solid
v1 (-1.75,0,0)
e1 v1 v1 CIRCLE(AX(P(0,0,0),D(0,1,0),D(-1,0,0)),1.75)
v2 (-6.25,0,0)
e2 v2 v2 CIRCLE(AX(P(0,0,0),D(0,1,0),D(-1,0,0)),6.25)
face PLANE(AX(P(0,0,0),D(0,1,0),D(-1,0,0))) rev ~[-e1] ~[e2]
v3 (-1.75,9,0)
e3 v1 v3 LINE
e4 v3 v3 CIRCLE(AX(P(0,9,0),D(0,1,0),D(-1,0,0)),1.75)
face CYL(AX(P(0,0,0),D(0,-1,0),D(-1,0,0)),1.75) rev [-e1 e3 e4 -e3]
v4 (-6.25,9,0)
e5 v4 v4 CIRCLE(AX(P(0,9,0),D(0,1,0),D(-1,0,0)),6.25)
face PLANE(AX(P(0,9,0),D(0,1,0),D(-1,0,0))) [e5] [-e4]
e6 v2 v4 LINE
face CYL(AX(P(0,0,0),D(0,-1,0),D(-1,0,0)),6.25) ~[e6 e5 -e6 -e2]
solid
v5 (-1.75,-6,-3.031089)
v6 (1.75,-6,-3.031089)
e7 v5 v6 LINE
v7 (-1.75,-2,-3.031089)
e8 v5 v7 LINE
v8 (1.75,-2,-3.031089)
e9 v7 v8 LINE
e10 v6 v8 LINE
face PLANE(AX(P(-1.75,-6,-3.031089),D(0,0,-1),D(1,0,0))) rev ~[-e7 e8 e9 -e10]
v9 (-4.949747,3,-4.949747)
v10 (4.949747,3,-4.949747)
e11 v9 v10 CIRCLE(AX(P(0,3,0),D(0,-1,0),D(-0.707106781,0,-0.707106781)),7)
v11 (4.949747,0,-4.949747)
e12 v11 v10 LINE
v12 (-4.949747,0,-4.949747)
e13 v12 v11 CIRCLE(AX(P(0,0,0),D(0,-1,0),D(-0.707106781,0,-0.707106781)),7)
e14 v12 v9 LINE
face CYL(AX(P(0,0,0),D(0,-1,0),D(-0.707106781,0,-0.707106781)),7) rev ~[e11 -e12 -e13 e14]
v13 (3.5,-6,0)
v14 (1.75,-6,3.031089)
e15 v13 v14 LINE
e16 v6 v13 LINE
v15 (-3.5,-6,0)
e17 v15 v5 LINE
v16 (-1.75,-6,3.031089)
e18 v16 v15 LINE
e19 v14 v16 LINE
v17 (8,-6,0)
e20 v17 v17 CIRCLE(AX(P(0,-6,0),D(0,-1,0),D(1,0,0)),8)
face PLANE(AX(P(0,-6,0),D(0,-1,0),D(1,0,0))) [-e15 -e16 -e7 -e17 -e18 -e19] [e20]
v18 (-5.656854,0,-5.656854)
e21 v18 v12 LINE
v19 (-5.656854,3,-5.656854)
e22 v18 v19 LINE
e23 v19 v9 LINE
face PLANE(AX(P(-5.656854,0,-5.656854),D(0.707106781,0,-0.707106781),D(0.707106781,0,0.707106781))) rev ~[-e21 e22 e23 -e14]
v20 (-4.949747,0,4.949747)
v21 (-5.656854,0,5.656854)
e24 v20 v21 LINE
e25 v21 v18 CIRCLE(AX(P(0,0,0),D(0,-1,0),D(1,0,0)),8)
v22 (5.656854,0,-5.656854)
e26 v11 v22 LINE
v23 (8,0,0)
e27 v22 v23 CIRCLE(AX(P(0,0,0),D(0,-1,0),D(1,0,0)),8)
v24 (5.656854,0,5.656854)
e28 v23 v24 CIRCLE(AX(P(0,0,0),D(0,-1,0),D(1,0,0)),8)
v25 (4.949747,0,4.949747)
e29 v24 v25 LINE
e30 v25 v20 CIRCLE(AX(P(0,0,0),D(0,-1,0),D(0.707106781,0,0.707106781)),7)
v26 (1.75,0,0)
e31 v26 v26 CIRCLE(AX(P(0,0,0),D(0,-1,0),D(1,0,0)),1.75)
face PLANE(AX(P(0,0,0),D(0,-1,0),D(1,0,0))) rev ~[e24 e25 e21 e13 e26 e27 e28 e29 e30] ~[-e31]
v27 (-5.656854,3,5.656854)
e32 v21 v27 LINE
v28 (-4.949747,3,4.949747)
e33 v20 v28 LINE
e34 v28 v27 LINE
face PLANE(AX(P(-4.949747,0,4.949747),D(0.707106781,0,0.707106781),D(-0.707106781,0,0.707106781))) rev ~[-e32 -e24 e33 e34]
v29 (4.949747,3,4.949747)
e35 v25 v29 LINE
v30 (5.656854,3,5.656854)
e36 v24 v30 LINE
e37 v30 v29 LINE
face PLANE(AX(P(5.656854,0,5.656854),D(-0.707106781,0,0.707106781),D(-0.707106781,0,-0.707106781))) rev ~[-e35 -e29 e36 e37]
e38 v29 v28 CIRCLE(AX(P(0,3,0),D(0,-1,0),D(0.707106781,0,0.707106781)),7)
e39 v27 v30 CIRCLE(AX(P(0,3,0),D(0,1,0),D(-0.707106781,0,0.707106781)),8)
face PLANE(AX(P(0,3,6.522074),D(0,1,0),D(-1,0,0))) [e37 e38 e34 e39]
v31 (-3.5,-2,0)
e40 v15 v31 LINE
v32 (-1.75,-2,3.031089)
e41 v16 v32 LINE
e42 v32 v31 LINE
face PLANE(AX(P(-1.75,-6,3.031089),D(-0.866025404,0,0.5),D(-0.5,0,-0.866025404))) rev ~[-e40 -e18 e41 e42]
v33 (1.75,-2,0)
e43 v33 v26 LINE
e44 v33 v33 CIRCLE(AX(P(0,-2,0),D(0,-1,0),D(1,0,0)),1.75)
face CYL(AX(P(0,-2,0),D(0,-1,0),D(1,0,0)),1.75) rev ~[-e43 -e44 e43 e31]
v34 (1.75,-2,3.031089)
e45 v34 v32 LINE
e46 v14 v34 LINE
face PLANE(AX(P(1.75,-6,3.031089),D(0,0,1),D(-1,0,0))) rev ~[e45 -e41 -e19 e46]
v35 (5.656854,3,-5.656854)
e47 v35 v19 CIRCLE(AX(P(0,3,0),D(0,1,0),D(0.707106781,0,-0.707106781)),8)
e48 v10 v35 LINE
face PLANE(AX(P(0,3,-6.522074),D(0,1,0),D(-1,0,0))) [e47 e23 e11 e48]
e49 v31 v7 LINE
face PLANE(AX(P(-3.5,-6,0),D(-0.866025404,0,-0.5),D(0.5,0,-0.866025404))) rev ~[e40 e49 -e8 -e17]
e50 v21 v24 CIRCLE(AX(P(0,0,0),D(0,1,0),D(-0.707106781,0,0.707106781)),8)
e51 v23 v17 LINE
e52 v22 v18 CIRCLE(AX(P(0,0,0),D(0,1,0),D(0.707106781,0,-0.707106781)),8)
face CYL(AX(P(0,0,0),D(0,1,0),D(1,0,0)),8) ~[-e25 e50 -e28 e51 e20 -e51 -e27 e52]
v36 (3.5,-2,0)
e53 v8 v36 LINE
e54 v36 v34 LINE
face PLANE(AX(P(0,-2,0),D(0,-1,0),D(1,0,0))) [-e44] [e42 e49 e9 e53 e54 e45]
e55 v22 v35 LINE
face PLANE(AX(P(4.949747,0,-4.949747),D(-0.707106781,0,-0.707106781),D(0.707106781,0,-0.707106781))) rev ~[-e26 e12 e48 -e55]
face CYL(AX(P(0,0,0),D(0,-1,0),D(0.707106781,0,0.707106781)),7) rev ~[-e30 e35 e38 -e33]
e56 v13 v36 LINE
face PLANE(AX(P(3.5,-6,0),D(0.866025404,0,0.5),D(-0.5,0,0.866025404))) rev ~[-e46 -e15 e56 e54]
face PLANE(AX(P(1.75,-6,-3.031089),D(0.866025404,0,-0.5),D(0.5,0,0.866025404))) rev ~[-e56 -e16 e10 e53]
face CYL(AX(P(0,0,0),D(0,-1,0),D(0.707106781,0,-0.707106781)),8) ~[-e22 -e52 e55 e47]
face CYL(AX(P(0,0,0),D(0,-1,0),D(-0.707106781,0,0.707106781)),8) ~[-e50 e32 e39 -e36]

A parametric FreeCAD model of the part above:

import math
import FreeCAD as App
import Part
import Sketcher
from FreeCAD import Vector
Q = App.Units.Quantity


def add_polygon(sketch, points):
    """Adds a closed chain of lines whose ends are joined by coincident constraints."""
    first, n = sketch.GeometryCount, len(points)
    for a, b in zip(points, points[1:] + points[:1]):
        sketch.addGeometry(Part.LineSegment(App.Vector(*a, 0), App.Vector(*b, 0)), False)
    for i in range(n):
        sketch.addConstraint(Sketcher.Constraint("Coincident", first + i, 2, first + (i + 1) % n, 1))

doc = App.newDocument("Part")
body = doc.addObject("PartDesign::Body", "Body")

sketch1 = body.newObject("Sketcher::SketchObject", "Sketch")
sketch1.AttachmentSupport = (doc.getObject("XZ_Plane"), [""])
sketch1.MapMode = "FlatFace"
sketch1.addGeometry(Part.Circle(Vector(0, 0, 0), Vector(0, 0, 1), 8), False)
sketch1.addConstraint([
    Sketcher.Constraint("Coincident", 0, 3, -1, 1),
    Sketcher.Constraint("Diameter", 0, Q("16 mm")),
])
pad1 = body.newObject("PartDesign::Pad", "Pad")
pad1.Profile = sketch1
pad1.Length = 6

sketch2 = body.newObject("Sketcher::SketchObject", "Sketch001")
sketch2.AttachmentSupport = (doc.getObject("XZ_Plane"), [""])
sketch2.MapMode = "FlatFace"
sketch2.AttachmentOffset = App.Placement(Vector(0, 0, 6), App.Rotation())
add_polygon(sketch2, [(-1.8, -3), (1.8, -3), (3.5, 0), (1.8, 3), (-1.8, 3), (-3.5, 0)])
sketch2.addConstraint([
    Sketcher.Constraint("Horizontal", 0),
    Sketcher.Constraint("Horizontal", 3),
    Sketcher.Constraint("Symmetric", 0, 2, 3, 2, -1, 1),
    Sketcher.Constraint("Symmetric", 1, 2, 4, 2, -1, 1),
    Sketcher.Constraint("PointOnObject", 1, 2, -1),
    Sketcher.Constraint("Parallel", 2, 5),
    Sketcher.Constraint("Vertical", 0, 2, 2, 2),
    Sketcher.Constraint("Angle", 1, Q("60 deg")),
    Sketcher.Constraint("DistanceX", 0, 1, 0, 2, Q("3.5 mm")),
    Sketcher.Constraint("DistanceX", 4, 2, 1, 2, Q("7 mm")),
])
pocket1 = body.newObject("PartDesign::Pocket", "Pocket")
pocket1.Profile = sketch2
pocket1.Length = 4

sketch3 = body.newObject("Sketcher::SketchObject", "Sketch002")
sketch3.AttachmentSupport = (doc.getObject("XZ_Plane"), [""])
sketch3.MapMode = "FlatFace"
sketch3.addGeometry([
    Part.LineSegment(Vector(4.9, -4.9, 0), Vector(5.7, -5.7, 0)),
    Part.ArcOfCircle(Part.Circle(Vector(0, 0, 0), Vector(0, 0, 1), 8), math.radians(-135), math.radians(-45)),
    Part.LineSegment(Vector(-5.7, -5.7, 0), Vector(-4.9, -4.9, 0)),
    Part.ArcOfCircle(Part.Circle(Vector(0, 0, 0), Vector(0, 0, 1), 7), math.radians(-135), math.radians(-45)),
    Part.LineSegment(Vector(-4.9, 4.9, 0), Vector(-5.7, 5.7, 0)),
    Part.ArcOfCircle(Part.Circle(Vector(0, 0, 0), Vector(0, 0, 1), 8), math.radians(45), math.radians(135)),
    Part.LineSegment(Vector(5.7, 5.7, 0), Vector(4.9, 4.9, 0)),
    Part.ArcOfCircle(Part.Circle(Vector(0, 0, 0), Vector(0, 0, 1), 7), math.radians(45), math.radians(135)),
], False)
sketch3.addConstraint([
    Sketcher.Constraint("Coincident", 0, 2, 1, 2),
    Sketcher.Constraint("Coincident", 1, 1, 2, 1),
    Sketcher.Constraint("Coincident", 2, 2, 3, 1),
    Sketcher.Constraint("Coincident", 3, 2, 0, 1),
    Sketcher.Constraint("Coincident", 4, 2, 5, 2),
    Sketcher.Constraint("Coincident", 5, 1, 6, 1),
    Sketcher.Constraint("Coincident", 6, 2, 7, 1),
    Sketcher.Constraint("Coincident", 7, 2, 4, 1),
    Sketcher.Constraint("Coincident", 1, 3, -1, 1),
    Sketcher.Constraint("Coincident", 3, 3, -1, 1),
    Sketcher.Constraint("Coincident", 5, 3, -1, 1),
    Sketcher.Constraint("Coincident", 7, 3, -1, 1),
    Sketcher.Constraint("Equal", 1, 5),
    Sketcher.Constraint("Equal", 3, 7),
    Sketcher.Constraint("Perpendicular", 0, 2),
    Sketcher.Constraint("Perpendicular", 2, 4),
    Sketcher.Constraint("Perpendicular", 4, 6),
    Sketcher.Constraint("Horizontal", 0, 2, 1, 1),
    Sketcher.Constraint("Horizontal", 2, 2, 3, 2),
    Sketcher.Constraint("Horizontal", 4, 2, 5, 1),
    Sketcher.Constraint("Vertical", 1, 1, 4, 2),
    Sketcher.Constraint("Radius", 1, Q("8 mm")),
    Sketcher.Constraint("Radius", 3, Q("7 mm")),
    Sketcher.Constraint("DistanceY", 2, 2, 4, 2, Q("10.606602 mm")),
])
pad2 = body.newObject("PartDesign::Pad", "Pad001")
pad2.Profile = sketch3
pad2.Length = 3
pad2.Reversed = True

sketch4 = body.newObject("Sketcher::SketchObject", "Sketch003")
sketch4.AttachmentSupport = (doc.getObject("XZ_Plane"), [""])
sketch4.MapMode = "FlatFace"
sketch4.AttachmentOffset = App.Placement(Vector(0, 0, 2), App.Rotation())
sketch4.addGeometry(Part.Circle(Vector(0, 0, 0), Vector(0, 0, 1), 1.8), False)
sketch4.addConstraint([
    Sketcher.Constraint("Coincident", 0, 3, -1, 1),
    Sketcher.Constraint("Diameter", 0, Q("3.5 mm")),
])
pocket2 = body.newObject("PartDesign::Pocket", "Pocket001")
pocket2.Profile = sketch4
pocket2.Length = 25
body2 = doc.addObject("PartDesign::Body", "Body001")

sketch5 = body2.newObject("Sketcher::SketchObject", "Sketch004")
sketch5.AttachmentSupport = (doc.getObject("XZ_Plane001"), [""])
sketch5.MapMode = "FlatFace"
sketch5.addGeometry([
    Part.Circle(Vector(0, 0, 0), Vector(0, 0, 1), 6.2),
    Part.Circle(Vector(0, 0, 0), Vector(0, 0, 1), 1.8),
], False)
sketch5.addConstraint([
    Sketcher.Constraint("Coincident", 0, 3, -1, 1),
    Sketcher.Constraint("Coincident", 1, 3, -1, 1),
    Sketcher.Constraint("Diameter", 0, Q("12.5 mm")),
    Sketcher.Constraint("Diameter", 1, Q("3.5 mm")),
])
pad3 = body2.newObject("PartDesign::Pad", "Pad002")
pad3.Profile = sketch5
pad3.Length = 9
pad3.Reversed = True

doc.recompute()
